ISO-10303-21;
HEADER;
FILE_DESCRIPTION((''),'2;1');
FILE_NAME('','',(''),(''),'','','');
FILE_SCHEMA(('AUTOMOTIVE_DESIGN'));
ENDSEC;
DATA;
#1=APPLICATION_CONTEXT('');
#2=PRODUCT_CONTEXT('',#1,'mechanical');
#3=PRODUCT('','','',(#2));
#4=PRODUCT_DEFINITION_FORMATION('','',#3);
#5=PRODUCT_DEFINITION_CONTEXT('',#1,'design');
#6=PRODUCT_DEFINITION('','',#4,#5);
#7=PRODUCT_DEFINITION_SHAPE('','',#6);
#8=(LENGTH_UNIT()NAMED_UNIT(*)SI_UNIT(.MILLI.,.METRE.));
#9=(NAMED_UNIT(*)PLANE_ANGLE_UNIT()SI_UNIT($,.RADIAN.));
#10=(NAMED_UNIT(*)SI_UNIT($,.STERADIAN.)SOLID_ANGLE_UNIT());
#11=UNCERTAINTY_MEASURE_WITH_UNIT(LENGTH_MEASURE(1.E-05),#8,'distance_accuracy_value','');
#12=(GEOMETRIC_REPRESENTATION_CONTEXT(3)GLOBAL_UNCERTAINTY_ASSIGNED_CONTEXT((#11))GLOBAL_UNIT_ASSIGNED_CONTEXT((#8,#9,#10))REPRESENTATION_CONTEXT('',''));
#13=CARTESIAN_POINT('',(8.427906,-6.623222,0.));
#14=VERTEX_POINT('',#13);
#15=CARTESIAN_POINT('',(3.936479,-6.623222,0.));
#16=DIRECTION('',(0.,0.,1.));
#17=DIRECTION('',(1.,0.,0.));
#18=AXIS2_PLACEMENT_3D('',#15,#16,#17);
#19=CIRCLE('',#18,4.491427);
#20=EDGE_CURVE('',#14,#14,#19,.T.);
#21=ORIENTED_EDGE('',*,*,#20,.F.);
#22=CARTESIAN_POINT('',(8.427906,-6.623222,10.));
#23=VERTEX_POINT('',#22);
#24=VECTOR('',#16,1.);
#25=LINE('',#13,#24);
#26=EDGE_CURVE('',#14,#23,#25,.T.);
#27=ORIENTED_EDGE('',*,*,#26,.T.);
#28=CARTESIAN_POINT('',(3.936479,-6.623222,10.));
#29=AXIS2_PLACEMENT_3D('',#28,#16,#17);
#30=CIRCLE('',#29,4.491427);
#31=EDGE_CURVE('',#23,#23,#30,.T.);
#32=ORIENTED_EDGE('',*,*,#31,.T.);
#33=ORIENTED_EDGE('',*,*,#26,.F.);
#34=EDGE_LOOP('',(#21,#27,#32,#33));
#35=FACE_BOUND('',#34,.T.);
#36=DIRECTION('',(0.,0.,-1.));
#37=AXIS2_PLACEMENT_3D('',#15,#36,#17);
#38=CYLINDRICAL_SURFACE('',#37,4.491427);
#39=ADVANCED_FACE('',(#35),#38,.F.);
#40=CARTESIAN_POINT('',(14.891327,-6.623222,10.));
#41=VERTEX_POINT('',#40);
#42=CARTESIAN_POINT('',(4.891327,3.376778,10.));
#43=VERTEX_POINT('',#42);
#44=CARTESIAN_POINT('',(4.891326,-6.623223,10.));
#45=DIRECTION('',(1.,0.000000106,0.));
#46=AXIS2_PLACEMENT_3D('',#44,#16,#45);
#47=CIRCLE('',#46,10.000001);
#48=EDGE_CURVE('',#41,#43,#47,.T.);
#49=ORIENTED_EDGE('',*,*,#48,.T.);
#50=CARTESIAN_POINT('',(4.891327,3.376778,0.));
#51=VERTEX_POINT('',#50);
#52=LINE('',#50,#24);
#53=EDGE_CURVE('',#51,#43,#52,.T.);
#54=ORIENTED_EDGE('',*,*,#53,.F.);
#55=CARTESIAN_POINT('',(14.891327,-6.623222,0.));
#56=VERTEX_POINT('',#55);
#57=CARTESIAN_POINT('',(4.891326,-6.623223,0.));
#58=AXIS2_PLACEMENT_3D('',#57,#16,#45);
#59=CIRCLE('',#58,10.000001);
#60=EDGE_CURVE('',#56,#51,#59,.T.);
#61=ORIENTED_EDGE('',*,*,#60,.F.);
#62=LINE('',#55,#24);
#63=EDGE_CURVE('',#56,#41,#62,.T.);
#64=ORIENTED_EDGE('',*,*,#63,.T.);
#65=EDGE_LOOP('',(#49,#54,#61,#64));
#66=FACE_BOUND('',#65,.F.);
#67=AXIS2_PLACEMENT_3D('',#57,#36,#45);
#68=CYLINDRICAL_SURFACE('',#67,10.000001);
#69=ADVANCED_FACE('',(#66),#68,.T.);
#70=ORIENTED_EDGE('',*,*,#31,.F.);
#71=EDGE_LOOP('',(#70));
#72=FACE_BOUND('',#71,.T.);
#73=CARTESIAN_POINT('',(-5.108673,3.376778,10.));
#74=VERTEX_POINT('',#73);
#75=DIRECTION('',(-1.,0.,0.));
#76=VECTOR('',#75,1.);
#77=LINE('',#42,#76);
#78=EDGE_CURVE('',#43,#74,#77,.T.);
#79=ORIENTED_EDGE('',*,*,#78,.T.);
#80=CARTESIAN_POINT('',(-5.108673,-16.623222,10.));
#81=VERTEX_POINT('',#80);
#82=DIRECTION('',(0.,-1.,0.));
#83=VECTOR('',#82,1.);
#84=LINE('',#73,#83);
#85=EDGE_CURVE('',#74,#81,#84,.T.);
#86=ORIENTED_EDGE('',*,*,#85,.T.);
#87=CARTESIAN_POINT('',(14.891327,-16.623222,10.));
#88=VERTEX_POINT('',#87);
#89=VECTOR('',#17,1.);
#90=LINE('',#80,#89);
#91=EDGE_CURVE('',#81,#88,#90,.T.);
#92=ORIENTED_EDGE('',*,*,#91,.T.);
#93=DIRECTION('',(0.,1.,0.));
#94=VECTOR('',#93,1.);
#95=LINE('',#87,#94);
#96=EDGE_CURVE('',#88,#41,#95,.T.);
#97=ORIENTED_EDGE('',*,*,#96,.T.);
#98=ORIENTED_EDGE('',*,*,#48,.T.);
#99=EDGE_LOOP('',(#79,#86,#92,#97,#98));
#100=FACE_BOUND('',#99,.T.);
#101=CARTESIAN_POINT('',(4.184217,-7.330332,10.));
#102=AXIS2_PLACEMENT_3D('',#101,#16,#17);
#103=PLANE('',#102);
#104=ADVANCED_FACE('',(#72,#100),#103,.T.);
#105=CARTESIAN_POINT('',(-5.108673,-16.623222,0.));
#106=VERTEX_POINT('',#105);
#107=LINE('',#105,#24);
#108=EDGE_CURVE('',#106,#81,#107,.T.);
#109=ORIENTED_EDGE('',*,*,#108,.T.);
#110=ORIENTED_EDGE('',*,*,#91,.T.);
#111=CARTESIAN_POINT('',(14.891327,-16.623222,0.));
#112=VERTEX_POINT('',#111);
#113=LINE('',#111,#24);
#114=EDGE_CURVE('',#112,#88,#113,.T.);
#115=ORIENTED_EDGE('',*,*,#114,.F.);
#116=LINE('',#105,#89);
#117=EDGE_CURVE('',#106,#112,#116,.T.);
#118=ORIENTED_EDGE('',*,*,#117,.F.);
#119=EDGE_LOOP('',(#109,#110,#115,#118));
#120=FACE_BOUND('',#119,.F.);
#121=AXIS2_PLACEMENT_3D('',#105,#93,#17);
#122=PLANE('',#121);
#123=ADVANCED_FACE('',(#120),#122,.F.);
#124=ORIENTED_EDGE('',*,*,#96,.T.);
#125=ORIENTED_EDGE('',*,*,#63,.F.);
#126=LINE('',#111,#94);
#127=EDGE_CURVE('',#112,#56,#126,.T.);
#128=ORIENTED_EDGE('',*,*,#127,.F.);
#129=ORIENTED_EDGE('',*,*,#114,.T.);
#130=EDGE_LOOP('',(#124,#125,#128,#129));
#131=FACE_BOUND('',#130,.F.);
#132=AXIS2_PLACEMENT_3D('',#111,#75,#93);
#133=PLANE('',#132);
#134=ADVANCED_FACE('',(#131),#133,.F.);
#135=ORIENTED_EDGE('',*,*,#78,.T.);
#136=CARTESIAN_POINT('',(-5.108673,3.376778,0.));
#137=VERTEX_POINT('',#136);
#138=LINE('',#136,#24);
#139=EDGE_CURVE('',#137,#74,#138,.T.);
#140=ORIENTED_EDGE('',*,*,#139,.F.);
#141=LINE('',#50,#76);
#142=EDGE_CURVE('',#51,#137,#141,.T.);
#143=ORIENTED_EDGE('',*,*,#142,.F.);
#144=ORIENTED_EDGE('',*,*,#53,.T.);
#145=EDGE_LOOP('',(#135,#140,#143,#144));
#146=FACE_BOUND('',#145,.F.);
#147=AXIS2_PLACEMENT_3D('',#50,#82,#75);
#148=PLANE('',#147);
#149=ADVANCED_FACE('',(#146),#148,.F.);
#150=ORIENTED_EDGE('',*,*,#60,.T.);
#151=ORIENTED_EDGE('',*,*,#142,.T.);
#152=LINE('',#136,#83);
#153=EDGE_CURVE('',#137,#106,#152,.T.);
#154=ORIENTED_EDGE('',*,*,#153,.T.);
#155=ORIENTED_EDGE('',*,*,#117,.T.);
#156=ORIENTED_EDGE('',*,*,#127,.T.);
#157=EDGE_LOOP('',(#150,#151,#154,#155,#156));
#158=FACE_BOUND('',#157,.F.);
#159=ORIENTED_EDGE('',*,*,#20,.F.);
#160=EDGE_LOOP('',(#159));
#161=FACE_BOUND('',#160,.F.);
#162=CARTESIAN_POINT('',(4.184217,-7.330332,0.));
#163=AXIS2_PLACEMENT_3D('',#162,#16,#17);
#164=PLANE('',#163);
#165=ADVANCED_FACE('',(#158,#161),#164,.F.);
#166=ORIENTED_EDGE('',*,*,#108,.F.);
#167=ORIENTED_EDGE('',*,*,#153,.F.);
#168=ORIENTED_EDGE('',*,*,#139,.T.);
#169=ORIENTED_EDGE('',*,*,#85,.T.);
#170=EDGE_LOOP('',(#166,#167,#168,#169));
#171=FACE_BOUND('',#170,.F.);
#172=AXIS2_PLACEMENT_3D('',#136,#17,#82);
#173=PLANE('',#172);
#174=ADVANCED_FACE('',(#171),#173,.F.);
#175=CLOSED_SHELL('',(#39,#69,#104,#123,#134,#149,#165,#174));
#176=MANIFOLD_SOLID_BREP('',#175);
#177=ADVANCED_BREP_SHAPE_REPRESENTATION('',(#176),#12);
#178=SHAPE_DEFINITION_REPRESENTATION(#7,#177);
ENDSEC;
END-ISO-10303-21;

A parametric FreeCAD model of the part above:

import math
import FreeCAD as App
import Part
import Sketcher
Q = App.Units.Quantity

doc = App.newDocument("Part")
params = doc.addObject("Spreadsheet::Sheet", "Params")
for row, (alias, value) in enumerate([
    ("sketch1_radius", "10.000001 mm"),
    ("sketch1_width", "10 mm"),
    ("pad1_length", "10 mm"),
], start=1):
    params.set(f"A{row}", alias)
    params.set(f"B{row}", "=" + value)
    params.setAlias(f"B{row}", alias)

body = doc.addObject("PartDesign::Body", "Body")

# Sketch on XY plane
sketch1 = body.newObject("Sketcher::SketchObject", "Sketch")
sketch1.AttachmentSupport = (doc.getObject("XY_Plane"), [""])
sketch1.MapMode = "FlatFace"
sketch1.addGeometry([
    Part.LineSegment(App.Vector(4.891327, 3.376778, 0), App.Vector(-5.108673, 3.376778, 0)),  # 0
    Part.LineSegment(App.Vector(-5.108673, 3.376778, 0), App.Vector(-5.108673, -16.623222, 0)),  # 1
    Part.LineSegment(App.Vector(-5.108673, -16.623222, 0), App.Vector(14.891327, -16.623222, 0)),  # 2
    Part.LineSegment(App.Vector(14.891327, -16.623222, 0), App.Vector(14.891327, -6.623222, 0)),  # 3
    Part.ArcOfCircle(Part.Circle(App.Vector(4.891326, -6.623223, 0), App.Vector(0, 0, 1), 10.000001), math.radians(0.000006), math.radians(89.999994)),  # 4
    Part.Circle(App.Vector(3.936479, -6.623222, 0), App.Vector(0, 0, 1), 4.491427),  # 5
], False)
sketch1.addConstraint([
    Sketcher.Constraint("Coincident", 0, 2, 1, 1),
    Sketcher.Constraint("Coincident", 1, 2, 2, 1),
    Sketcher.Constraint("Coincident", 2, 2, 3, 1),
    Sketcher.Constraint("Tangent", 3, 2, 4, 1),
    Sketcher.Constraint("Tangent", 4, 2, 0, 1),
    Sketcher.Constraint("Horizontal", 0),
    Sketcher.Constraint("Vertical", 1),
    Sketcher.Constraint("Horizontal", 2),
    Sketcher.Constraint("Vertical", 3),
    Sketcher.Constraint("Horizontal", 4, 3, 5, 3),
    Sketcher.Constraint("Equal", 2, 1),
    Sketcher.Constraint("Radius", 4, Q("10.000001 mm")),
    Sketcher.Constraint("DistanceX", 0, 2, 0, 1, Q("10 mm")),
    Sketcher.Constraint("Diameter", 5, Q("8.982854 mm")),
    Sketcher.Constraint("DistanceX", -1, 1, 5, 3, Q("3.936479 mm")),
    Sketcher.Constraint("DistanceY", 1, 2, -1, 1, Q("16.623222 mm")),
    Sketcher.Constraint("DistanceX", 5, 3, 4, 2, Q("0.954848 mm")),
])
sketch1.setExpression("Constraints[11]", "Params.sketch1_radius")
sketch1.setExpression("Constraints[12]", "Params.sketch1_width")
pad1 = body.newObject("PartDesign::Pad", "Pad")
pad1.Profile = sketch1
pad1.setExpression("Length", "Params.pad1_length")

doc.recompute()
